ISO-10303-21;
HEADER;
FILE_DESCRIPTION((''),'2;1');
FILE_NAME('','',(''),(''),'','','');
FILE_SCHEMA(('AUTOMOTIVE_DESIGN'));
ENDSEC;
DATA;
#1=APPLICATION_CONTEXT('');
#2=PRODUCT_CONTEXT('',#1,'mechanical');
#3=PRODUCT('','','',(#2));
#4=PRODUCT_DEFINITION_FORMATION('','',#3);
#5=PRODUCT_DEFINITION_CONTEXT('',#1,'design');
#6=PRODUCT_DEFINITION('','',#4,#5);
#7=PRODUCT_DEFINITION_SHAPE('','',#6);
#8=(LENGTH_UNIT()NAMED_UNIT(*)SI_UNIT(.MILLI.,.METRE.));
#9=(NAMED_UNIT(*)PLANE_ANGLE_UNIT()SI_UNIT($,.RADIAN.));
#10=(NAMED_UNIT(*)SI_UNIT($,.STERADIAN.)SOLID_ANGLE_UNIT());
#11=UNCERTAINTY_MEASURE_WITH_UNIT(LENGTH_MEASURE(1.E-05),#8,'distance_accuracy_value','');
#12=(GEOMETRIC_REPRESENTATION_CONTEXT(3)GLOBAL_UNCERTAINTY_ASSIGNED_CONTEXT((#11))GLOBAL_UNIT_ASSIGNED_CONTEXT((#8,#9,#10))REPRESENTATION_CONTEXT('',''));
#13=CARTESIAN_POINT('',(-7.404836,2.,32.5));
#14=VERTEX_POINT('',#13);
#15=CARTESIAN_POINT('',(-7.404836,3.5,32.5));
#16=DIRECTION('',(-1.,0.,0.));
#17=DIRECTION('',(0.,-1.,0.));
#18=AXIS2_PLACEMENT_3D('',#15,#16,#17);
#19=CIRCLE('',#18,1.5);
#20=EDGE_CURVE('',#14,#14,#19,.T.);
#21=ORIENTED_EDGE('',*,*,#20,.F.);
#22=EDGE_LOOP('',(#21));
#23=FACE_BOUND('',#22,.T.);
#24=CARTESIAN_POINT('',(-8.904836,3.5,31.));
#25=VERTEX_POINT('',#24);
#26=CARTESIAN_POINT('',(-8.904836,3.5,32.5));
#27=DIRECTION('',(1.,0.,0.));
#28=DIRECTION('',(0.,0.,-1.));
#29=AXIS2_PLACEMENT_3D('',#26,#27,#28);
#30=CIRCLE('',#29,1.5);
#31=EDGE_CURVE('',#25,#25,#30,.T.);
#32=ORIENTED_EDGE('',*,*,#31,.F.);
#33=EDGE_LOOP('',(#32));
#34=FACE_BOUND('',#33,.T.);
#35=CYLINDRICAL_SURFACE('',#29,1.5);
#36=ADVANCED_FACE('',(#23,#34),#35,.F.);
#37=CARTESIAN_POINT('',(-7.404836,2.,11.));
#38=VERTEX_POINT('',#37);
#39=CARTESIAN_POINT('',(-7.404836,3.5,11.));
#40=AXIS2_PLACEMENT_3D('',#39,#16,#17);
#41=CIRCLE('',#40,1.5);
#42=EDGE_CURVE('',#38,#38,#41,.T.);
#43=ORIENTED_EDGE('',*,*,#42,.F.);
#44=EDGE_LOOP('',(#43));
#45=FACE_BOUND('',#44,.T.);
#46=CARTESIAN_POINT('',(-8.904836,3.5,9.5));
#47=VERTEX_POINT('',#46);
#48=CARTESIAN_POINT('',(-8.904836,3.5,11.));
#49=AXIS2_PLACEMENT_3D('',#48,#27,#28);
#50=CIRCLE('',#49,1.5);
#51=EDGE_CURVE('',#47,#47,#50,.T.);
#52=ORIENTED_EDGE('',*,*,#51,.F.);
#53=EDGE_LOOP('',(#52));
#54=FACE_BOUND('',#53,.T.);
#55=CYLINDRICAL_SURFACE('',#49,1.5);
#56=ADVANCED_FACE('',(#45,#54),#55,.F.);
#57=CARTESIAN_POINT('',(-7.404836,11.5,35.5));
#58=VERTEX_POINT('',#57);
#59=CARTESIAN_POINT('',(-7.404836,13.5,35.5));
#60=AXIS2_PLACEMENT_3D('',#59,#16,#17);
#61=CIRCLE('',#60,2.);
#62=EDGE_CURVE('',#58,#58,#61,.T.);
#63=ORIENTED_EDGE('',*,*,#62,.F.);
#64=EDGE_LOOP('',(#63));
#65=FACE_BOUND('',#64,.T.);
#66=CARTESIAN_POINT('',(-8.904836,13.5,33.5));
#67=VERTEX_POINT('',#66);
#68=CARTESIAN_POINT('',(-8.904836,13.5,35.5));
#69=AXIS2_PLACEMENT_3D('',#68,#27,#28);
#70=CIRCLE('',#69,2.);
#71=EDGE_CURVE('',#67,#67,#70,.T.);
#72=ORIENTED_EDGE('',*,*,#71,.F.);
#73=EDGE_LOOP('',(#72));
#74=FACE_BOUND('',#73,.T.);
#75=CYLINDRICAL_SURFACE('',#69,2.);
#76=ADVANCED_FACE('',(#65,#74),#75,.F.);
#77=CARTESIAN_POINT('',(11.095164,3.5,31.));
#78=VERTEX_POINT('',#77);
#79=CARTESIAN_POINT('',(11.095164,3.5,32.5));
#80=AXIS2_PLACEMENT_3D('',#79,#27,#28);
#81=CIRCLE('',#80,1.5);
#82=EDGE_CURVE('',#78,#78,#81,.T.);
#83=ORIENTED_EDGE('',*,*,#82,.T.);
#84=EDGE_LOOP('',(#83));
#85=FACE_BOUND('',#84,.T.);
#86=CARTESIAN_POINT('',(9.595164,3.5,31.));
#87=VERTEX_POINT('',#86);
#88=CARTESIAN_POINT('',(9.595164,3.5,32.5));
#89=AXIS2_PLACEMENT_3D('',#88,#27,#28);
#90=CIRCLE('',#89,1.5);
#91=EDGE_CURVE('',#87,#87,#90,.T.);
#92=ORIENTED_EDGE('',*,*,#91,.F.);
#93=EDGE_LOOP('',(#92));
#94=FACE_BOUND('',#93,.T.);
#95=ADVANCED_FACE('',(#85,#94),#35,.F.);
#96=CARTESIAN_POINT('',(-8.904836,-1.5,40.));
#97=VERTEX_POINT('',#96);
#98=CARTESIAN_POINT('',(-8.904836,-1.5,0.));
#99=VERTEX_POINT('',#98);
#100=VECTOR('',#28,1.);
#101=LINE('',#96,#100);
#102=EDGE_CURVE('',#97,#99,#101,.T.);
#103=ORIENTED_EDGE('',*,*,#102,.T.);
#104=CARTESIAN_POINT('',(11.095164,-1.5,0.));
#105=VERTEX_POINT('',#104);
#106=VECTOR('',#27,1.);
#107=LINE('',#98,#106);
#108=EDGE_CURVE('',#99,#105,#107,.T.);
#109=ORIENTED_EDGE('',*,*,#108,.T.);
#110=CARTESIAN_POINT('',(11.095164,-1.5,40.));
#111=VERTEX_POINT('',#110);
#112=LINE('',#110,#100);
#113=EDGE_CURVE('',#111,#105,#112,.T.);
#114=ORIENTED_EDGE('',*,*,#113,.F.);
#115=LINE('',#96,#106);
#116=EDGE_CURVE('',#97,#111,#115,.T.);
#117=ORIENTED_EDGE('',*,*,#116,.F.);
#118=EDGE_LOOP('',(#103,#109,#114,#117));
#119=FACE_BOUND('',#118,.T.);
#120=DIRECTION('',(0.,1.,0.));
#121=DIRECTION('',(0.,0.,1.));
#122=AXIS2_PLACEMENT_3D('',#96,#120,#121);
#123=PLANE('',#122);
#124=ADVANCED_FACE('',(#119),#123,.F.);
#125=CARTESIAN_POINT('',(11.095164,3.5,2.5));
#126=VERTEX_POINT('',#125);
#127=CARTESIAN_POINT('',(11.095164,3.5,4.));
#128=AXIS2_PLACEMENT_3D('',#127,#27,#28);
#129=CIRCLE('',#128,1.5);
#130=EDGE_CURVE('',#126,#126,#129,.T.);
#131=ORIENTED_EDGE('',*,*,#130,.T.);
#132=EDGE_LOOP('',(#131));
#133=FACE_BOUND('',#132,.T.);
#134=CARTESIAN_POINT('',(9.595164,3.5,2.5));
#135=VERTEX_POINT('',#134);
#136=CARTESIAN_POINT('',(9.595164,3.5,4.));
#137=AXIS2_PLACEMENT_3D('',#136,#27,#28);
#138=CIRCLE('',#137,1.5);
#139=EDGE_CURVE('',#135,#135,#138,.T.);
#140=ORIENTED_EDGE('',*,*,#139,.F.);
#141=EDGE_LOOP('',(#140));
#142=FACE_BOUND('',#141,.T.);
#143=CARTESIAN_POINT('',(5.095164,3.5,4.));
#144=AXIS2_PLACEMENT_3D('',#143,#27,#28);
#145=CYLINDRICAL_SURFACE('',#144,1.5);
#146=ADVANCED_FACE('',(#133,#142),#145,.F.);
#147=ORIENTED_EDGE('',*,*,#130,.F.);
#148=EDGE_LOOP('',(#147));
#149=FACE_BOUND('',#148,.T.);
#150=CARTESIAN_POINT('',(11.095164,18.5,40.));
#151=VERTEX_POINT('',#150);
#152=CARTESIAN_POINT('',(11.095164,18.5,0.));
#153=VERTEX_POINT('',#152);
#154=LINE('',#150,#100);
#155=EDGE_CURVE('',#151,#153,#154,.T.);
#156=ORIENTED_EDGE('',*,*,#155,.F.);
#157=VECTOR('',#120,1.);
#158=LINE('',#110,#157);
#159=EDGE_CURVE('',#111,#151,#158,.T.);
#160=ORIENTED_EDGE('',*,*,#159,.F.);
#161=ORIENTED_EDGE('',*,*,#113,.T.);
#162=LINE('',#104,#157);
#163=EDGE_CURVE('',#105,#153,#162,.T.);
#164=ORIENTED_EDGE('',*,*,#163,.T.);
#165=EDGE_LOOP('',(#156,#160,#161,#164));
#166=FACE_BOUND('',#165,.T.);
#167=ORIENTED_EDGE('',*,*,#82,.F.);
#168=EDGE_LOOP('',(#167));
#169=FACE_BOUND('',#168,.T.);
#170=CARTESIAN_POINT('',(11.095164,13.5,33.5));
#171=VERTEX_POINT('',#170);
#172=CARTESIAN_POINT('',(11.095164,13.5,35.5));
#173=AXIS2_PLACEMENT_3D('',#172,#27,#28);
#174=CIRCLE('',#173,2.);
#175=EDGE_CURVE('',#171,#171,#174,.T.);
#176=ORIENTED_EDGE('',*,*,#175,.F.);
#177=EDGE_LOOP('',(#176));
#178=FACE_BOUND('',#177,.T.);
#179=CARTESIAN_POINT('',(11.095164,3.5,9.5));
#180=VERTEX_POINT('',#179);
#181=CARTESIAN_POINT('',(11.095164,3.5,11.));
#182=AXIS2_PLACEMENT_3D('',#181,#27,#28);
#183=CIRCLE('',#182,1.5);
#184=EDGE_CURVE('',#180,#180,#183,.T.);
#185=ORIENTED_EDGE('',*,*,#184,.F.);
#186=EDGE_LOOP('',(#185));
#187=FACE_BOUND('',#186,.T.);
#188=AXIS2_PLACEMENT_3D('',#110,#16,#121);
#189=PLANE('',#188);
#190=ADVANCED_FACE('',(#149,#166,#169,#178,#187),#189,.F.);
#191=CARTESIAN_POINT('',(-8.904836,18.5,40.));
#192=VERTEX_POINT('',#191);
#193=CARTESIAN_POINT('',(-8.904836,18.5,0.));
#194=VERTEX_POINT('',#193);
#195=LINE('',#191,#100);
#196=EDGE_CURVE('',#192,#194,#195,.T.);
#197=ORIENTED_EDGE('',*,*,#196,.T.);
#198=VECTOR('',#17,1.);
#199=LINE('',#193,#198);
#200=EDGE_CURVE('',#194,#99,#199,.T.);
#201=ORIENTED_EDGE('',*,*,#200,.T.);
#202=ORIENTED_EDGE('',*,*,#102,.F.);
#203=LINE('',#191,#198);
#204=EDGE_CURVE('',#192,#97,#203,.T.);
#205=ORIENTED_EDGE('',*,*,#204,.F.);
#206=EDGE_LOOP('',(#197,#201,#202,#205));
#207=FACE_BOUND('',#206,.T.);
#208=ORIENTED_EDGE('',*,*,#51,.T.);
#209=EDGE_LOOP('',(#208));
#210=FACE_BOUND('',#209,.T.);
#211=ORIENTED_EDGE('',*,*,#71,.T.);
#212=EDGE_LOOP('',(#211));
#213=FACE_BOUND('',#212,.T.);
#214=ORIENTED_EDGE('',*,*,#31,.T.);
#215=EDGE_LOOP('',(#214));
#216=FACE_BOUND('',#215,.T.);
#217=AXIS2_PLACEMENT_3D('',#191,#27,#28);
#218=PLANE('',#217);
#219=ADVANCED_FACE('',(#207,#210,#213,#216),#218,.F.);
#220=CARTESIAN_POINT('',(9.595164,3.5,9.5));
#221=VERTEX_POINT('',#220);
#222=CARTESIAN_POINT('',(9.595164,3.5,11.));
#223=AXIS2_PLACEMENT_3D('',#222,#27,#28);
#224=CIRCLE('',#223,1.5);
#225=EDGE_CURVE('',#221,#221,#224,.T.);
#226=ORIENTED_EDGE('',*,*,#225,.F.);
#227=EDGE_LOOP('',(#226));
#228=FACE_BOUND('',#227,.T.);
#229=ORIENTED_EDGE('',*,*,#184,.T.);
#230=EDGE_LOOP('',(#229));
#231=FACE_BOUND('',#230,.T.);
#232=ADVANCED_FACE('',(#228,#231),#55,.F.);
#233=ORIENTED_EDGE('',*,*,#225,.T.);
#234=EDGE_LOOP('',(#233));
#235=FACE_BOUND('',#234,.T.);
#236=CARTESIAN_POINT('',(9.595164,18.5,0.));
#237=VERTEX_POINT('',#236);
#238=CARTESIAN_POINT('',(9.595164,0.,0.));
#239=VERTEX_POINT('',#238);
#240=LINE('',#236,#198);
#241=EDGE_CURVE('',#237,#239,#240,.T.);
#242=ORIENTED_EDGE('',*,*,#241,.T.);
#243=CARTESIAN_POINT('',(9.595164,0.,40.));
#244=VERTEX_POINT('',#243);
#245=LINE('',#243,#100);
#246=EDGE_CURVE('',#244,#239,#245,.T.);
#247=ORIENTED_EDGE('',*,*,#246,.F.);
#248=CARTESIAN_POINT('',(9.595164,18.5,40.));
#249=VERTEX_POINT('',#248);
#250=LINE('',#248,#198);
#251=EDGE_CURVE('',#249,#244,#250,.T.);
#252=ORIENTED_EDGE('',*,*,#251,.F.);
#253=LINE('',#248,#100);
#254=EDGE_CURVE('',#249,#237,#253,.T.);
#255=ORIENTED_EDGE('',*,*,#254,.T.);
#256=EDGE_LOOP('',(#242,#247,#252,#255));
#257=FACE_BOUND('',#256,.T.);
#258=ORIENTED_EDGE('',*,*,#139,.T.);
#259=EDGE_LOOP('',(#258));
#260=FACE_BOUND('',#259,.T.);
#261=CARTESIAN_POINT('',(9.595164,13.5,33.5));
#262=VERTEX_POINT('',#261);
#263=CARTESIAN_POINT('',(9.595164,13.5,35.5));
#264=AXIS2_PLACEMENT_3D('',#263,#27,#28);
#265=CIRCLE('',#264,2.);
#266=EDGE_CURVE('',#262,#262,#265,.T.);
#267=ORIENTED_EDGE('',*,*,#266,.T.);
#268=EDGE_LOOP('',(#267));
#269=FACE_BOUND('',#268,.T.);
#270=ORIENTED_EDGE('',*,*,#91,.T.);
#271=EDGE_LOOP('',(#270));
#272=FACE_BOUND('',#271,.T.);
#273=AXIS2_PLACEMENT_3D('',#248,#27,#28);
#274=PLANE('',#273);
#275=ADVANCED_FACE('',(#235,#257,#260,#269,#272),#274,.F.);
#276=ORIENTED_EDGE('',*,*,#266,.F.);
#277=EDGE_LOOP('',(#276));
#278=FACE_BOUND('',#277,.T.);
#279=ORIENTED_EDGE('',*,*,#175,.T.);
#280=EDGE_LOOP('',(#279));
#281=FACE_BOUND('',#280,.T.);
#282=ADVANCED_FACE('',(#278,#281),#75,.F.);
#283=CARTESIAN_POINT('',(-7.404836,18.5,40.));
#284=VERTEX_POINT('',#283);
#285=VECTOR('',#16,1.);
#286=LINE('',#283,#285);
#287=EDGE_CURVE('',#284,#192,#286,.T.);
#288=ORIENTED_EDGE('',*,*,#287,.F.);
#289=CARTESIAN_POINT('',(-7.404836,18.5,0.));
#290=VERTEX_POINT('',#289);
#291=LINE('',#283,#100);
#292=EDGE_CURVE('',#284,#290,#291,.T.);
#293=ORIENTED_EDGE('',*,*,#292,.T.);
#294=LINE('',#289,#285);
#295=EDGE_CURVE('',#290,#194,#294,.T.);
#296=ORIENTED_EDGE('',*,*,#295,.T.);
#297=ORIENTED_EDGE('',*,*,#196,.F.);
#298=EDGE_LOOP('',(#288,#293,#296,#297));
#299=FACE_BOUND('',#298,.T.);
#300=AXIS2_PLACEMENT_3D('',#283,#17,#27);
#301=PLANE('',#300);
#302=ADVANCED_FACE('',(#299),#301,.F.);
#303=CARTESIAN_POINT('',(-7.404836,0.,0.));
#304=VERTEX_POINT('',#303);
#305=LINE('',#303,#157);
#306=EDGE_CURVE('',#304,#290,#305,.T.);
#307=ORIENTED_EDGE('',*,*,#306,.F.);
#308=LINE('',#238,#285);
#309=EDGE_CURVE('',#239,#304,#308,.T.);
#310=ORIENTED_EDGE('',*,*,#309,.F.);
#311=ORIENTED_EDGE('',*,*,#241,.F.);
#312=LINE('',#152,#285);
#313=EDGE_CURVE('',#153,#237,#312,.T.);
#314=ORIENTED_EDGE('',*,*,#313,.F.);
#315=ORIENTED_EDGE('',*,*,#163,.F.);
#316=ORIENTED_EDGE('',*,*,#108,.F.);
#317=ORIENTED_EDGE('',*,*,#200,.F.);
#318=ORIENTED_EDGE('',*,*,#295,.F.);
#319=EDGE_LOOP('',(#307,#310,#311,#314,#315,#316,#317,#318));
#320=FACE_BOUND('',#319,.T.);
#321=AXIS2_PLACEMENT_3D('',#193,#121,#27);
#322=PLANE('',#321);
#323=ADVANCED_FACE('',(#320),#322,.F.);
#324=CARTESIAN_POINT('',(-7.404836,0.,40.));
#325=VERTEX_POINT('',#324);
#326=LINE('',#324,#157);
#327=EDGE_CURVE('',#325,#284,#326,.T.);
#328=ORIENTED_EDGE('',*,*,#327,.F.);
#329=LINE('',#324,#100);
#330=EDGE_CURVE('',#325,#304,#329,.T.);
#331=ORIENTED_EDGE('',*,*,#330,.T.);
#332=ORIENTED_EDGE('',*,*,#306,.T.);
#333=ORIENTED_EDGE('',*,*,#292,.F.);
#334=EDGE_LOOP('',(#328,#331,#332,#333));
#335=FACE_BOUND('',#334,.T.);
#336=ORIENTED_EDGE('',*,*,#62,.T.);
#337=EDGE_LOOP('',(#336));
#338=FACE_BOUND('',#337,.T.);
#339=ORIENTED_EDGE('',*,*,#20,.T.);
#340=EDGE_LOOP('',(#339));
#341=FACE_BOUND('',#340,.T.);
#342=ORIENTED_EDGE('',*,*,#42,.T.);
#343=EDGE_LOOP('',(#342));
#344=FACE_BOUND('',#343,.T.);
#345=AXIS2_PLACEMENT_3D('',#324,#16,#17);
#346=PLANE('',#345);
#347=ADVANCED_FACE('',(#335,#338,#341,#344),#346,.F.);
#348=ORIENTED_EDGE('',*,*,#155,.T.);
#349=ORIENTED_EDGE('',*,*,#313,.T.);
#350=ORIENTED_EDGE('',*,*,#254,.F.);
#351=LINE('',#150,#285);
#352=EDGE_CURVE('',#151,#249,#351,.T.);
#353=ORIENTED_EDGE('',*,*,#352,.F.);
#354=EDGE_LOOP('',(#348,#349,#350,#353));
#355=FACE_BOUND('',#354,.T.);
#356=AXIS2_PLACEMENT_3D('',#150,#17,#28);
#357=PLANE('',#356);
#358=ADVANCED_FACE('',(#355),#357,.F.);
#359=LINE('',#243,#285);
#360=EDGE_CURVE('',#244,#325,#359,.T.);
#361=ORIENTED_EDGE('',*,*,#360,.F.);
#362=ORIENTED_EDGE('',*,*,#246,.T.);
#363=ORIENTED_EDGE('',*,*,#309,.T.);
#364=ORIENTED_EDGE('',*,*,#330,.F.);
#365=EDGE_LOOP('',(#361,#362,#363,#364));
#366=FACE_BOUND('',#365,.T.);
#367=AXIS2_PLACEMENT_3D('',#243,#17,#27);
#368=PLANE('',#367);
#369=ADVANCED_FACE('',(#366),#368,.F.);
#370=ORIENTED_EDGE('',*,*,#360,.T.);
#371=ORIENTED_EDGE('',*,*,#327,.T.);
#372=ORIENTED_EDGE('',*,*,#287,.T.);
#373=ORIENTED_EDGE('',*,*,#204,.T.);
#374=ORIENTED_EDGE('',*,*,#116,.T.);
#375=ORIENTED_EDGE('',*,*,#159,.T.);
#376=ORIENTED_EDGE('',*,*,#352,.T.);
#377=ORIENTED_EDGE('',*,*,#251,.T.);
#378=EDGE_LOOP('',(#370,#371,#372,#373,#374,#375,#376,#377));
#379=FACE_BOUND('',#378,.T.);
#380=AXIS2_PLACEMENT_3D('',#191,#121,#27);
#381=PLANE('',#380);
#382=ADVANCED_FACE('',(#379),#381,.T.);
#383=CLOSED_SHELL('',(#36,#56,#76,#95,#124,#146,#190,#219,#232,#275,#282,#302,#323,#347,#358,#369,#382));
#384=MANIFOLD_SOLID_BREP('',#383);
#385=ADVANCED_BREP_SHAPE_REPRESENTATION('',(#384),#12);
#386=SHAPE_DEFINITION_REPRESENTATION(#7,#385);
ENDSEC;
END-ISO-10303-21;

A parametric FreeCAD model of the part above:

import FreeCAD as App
import Part
import Sketcher
Q = App.Units.Quantity


def add_polygon(sketch, points):
    """Adds a closed chain of lines whose ends are joined by coincident constraints."""
    first, n = sketch.GeometryCount, len(points)
    for a, b in zip(points, points[1:] + points[:1]):
        sketch.addGeometry(Part.LineSegment(App.Vector(*a, 0), App.Vector(*b, 0)), False)
    for i in range(n):
        sketch.addConstraint(Sketcher.Constraint("Coincident", first + i, 2, first + (i + 1) % n, 1))

doc = App.newDocument("Part")
body = doc.addObject("PartDesign::Body", "Body")

sketch1 = body.newObject("Sketcher::SketchObject", "Sketch")
sketch1.AttachmentSupport = (doc.getObject("XY_Plane"), [""])
sketch1.MapMode = "FlatFace"
add_polygon(sketch1, [(-8.9, 18.5), (-8.9, -1.5), (11.1, -1.5), (11.1, 18.5), (9.6, 18.5), (9.6, 0), (-7.4, 0), (-7.4, 18.5)])
sketch1.addConstraint([
    Sketcher.Constraint("Vertical", 0),
    Sketcher.Constraint("Horizontal", 1),
    Sketcher.Constraint("Vertical", 2),
    Sketcher.Constraint("Horizontal", 3),
    Sketcher.Constraint("Vertical", 4),
    Sketcher.Constraint("Horizontal", 5),
    Sketcher.Constraint("Vertical", 6),
    Sketcher.Constraint("Horizontal", 7),
    Sketcher.Constraint("PointOnObject", 4, 2, -1),
    Sketcher.Constraint("Horizontal", 3, 2, 6, 2),
    Sketcher.Constraint("Equal", 3, 7),
    Sketcher.Constraint("Equal", 1, 0),
    Sketcher.Constraint("DistanceX", 1, 1, 1, 2, Q("20 mm")),
    Sketcher.Constraint("DistanceX", 5, 2, 5, 1, Q("17 mm")),
    Sketcher.Constraint("DistanceY", 4, 2, 4, 1, Q("18.5 mm")),
    Sketcher.Constraint("DistanceX", 0, 2, -1, 1, Q("8.904836 mm")),
])
pad1 = body.newObject("PartDesign::Pad", "Pad")
pad1.Profile = sketch1
pad1.Length = 40

sketch2 = body.newObject("Sketcher::SketchObject", "Sketch001")
sketch2.AttachmentSupport = (doc.getObject("YZ_Plane"), [""])
sketch2.MapMode = "FlatFace"
sketch2.AttachmentOffset = App.Placement(App.Vector(0, 0, 11.095164), App.Rotation())
sketch2.addGeometry([
    Part.Circle(App.Vector(3.5, 32.5, 0), App.Vector(0, 0, 1), 1.5),
    Part.Circle(App.Vector(3.5, 11, 0), App.Vector(0, 0, 1), 1.5),
    Part.Circle(App.Vector(13.5, 35.5, 0), App.Vector(0, 0, 1), 2),
], False)
sketch2.addConstraint([
    Sketcher.Constraint("Equal", 0, 1),
    Sketcher.Constraint("Vertical", 0, 3, 1, 3),
    Sketcher.Constraint("Diameter", 0, Q("3 mm")),
    Sketcher.Constraint("Diameter", 2, Q("4 mm")),
    Sketcher.Constraint("DistanceY", -1, 1, 1, 3, Q("11 mm")),
    Sketcher.Constraint("DistanceX", 0, 3, 2, 3, Q("10 mm")),
    Sketcher.Constraint("DistanceY", 0, 3, 2, 3, Q("3 mm")),
    Sketcher.Constraint("DistanceX", -1, 1, 0, 3, Q("3.5 mm")),
    Sketcher.Constraint("DistanceY", -1, 1, 0, 3, Q("32.5 mm")),
])
pocket1 = body.newObject("PartDesign::Pocket", "Pocket")
pocket1.Profile = sketch2
pocket1.Type = "ThroughAll"

sketch3 = body.newObject("Sketcher::SketchObject", "Sketch002")
sketch3.AttachmentSupport = (doc.getObject("YZ_Plane"), [""])
sketch3.MapMode = "FlatFace"
sketch3.AttachmentOffset = App.Placement(App.Vector(0, 0, 11.095164), App.Rotation())
sketch3.addGeometry(Part.Circle(App.Vector(3.5, 4, 0), App.Vector(0, 0, 1), 1.5), False)
sketch3.addConstraint([
    Sketcher.Constraint("Diameter", 0, Q("3 mm")),
    Sketcher.Constraint("DistanceY", -1, 1, 0, 3, Q("4 mm")),
    Sketcher.Constraint("DistanceX", -1, 1, 0, 3, Q("3.5 mm")),
])
pocket2 = body.newObject("PartDesign::Pocket", "Pocket001")
pocket2.Profile = sketch3
pocket2.Length = 6

doc.recompute()
